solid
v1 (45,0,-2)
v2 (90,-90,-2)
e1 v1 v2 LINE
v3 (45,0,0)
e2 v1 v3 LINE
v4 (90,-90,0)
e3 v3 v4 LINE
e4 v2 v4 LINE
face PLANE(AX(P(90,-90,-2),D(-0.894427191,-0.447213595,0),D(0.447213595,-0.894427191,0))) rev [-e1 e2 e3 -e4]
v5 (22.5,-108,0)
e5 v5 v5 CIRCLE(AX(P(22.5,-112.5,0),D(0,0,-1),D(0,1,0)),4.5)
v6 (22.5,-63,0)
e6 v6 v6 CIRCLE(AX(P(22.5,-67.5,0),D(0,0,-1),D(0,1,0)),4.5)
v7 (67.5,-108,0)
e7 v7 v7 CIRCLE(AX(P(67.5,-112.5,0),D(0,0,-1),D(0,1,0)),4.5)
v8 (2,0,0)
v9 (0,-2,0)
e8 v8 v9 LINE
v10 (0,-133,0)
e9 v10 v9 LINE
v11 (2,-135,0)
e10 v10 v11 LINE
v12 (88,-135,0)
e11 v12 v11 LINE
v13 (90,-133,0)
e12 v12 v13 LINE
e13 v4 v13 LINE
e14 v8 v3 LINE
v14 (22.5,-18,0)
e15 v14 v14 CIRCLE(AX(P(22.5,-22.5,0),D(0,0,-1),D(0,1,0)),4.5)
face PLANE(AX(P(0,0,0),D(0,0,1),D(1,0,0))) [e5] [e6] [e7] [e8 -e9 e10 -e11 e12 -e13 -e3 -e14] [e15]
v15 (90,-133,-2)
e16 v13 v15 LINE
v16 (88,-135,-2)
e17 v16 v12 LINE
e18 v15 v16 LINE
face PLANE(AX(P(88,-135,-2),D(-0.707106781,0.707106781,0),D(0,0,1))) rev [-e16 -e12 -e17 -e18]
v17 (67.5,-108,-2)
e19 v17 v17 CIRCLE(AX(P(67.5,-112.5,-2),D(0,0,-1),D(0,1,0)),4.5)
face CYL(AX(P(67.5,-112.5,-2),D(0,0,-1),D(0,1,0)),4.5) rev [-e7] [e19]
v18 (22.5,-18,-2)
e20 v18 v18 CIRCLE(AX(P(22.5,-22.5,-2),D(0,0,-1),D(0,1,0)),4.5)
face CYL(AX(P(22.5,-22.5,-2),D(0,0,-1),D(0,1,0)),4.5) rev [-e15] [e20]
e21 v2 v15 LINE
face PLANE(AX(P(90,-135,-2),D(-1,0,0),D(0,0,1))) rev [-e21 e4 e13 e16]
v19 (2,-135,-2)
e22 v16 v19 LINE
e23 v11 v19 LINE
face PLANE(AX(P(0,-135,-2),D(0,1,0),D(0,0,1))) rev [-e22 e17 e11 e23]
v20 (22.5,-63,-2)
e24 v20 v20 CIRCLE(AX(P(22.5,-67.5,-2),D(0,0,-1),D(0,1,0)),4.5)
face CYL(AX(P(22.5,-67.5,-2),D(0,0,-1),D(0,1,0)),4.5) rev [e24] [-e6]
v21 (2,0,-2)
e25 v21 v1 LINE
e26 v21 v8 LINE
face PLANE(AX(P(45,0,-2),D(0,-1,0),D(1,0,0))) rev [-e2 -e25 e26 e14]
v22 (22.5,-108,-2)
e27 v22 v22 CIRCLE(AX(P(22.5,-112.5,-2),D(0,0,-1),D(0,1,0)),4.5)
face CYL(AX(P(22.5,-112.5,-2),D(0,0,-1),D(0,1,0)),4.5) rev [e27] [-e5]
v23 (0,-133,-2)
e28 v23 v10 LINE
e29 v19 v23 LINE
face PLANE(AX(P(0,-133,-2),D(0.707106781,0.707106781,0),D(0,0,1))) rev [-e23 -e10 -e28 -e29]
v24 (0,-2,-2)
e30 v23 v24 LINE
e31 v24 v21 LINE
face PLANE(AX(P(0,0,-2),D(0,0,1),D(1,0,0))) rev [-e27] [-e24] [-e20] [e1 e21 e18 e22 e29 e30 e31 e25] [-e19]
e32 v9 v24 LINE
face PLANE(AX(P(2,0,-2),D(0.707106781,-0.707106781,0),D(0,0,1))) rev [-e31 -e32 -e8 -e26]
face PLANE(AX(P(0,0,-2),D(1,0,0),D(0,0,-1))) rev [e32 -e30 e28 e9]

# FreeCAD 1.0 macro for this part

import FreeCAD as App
import Part
import Sketcher

V = App.Vector
Q = App.Units.Quantity


def edges_at(feature, points):
    """Names of the edges that pass closest to the given points."""
    edges = feature.Shape.Edges
    near = lambda p: min(range(len(edges)), key=lambda i: edges[i].distToShape(Part.Vertex(*p))[0])
    return sorted({f"Edge{near(p) + 1}" for p in points})

doc = App.newDocument("Part")
body = doc.addObject("PartDesign::Body", "Body")

sketch1 = body.newObject("Sketcher::SketchObject", "Sketch")
sketch1.AttachmentSupport = (doc.getObject("XY_Plane"), [""])
sketch1.MapMode = "FlatFace"
sketch1.addGeometry(Part.LineSegment(V(0, -135, 0), V(0, 0, 0)), False)
sketch1.addGeometry(Part.LineSegment(V(0, 0, 0), V(45, 0, 0)), False)
sketch1.addGeometry(Part.LineSegment(V(45, 0, 0), V(90, -90, 0)), False)
sketch1.addGeometry(Part.LineSegment(V(90, -90, 0), V(90, -135, 0)), False)
sketch1.addGeometry(Part.LineSegment(V(90, -135, 0), V(0, -135, 0)), False)
sketch1.addConstraint(Sketcher.Constraint("Coincident", 0, 2, 1, 1))
sketch1.addConstraint(Sketcher.Constraint("Coincident", 1, 2, 2, 1))
sketch1.addConstraint(Sketcher.Constraint("Coincident", 2, 2, 3, 1))
sketch1.addConstraint(Sketcher.Constraint("Coincident", 3, 2, 4, 1))
sketch1.addConstraint(Sketcher.Constraint("Coincident", 4, 2, 0, 1))
sketch1.addConstraint(Sketcher.Constraint("Vertical", 0))
sketch1.addConstraint(Sketcher.Constraint("Horizontal", 1))
sketch1.addConstraint(Sketcher.Constraint("Vertical", 3))
sketch1.addConstraint(Sketcher.Constraint("Horizontal", 4))
sketch1.addConstraint(Sketcher.Constraint("Coincident", 0, 2, -1, 1))
sketch1.addConstraint(Sketcher.Constraint("Equal", 1, 3))
sketch1.addConstraint(Sketcher.Constraint("DistanceX", 1, 1, 1, 2, Q("45 mm")))
sketch1.addConstraint(Sketcher.Constraint("DistanceX", 4, 2, 4, 1, Q("90 mm")))
sketch1.addConstraint(Sketcher.Constraint("DistanceY", 0, 1, 0, 2, Q("135 mm")))
pad1 = body.newObject("PartDesign::Pad", "Pad")
pad1.Profile = sketch1
pad1.Length = 2
pad1.Reversed = True

sketch2 = body.newObject("Sketcher::SketchObject", "Sketch001")
sketch2.AttachmentSupport = (doc.getObject("XY_Plane"), [""])
sketch2.MapMode = "FlatFace"
sketch2.AttachmentOffset = App.Placement(V(0, 0, -2), App.Rotation())
sketch2.addGeometry(Part.Circle(V(67.5, -112.5, 0), V(0, 0, 1), 4.5), False)
sketch2.addGeometry(Part.Circle(V(22.5, -112.5, 0), V(0, 0, 1), 4.5), False)
sketch2.addGeometry(Part.Circle(V(22.5, -67.5, 0), V(0, 0, 1), 4.5), False)
sketch2.addGeometry(Part.Circle(V(22.5, -22.5, 0), V(0, 0, 1), 4.5), False)
sketch2.addConstraint(Sketcher.Constraint("Equal", 0, 1))
sketch2.addConstraint(Sketcher.Constraint("Equal", 1, 2))
sketch2.addConstraint(Sketcher.Constraint("Equal", 2, 3))
sketch2.addConstraint(Sketcher.Constraint("Horizontal", 0, 3, 1, 3))
sketch2.addConstraint(Sketcher.Constraint("Vertical", 1, 3, 2, 3))
sketch2.addConstraint(Sketcher.Constraint("Vertical", 2, 3, 3, 3))
sketch2.addConstraint(Sketcher.Constraint("Diameter", 0, Q("9 mm")))
sketch2.addConstraint(Sketcher.Constraint("DistanceX", 1, 3, 0, 3, Q("45 mm")))
sketch2.addConstraint(Sketcher.Constraint("DistanceY", 1, 3, 2, 3, Q("45 mm")))
sketch2.addConstraint(Sketcher.Constraint("DistanceY", 2, 3, 3, 3, Q("45 mm")))
sketch2.addConstraint(Sketcher.Constraint("DistanceX", -1, 1, 0, 3, Q("67.5 mm")))
sketch2.addConstraint(Sketcher.Constraint("DistanceY", 0, 3, -1, 1, Q("112.5 mm")))
doc.recompute()
hole = body.newObject("PartDesign::Hole", "Hole")
hole.Profile = sketch2
hole.ThreadType = "None"
hole.Diameter = 9
hole.DepthType = "ThroughAll"
hole.Reversed = True
doc.recompute()

chamfer = body.newObject("PartDesign::Chamfer", "Chamfer")
chamfer.Base = (hole, edges_at(hole, [(0, 0, -1), (0, -135, -1), (90, -135, -1)]))
chamfer.Size = 2

doc.recompute()
